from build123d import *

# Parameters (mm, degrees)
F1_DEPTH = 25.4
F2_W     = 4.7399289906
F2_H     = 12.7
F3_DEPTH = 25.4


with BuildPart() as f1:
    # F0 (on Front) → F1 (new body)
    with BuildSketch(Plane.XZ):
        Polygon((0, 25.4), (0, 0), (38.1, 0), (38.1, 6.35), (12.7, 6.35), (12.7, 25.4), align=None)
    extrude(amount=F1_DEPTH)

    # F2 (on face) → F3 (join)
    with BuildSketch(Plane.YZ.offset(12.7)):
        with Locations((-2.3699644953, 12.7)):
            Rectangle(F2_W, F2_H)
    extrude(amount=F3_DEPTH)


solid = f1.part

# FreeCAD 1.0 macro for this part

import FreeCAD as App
import Part
import Sketcher
Q = App.Units.Quantity


def add_polygon(sketch, points):
    """Adds a closed chain of lines whose ends are joined by coincident constraints."""
    first, n = sketch.GeometryCount, len(points)
    for a, b in zip(points, points[1:] + points[:1]):
        sketch.addGeometry(Part.LineSegment(App.Vector(*a, 0), App.Vector(*b, 0)), False)
    for i in range(n):
        sketch.addConstraint(Sketcher.Constraint("Coincident", first + i, 2, first + (i + 1) % n, 1))

doc = App.newDocument("Part")
params = doc.addObject("Spreadsheet::Sheet", "Params")
for row, (alias, value) in enumerate([
    ("sketch1_width", "1 in"),
    ("sketch1_width2", "1.5 in"),
    ("sketch1_height", "0.25 in"),
    ("pad1_length", "1 in"),
    ("sketch2_height", "0.5 in"),
    ("pad2_length", "1 in"),
], start=1):
    params.set(f"A{row}", alias)
    params.set(f"B{row}", "=" + value)
    params.setAlias(f"B{row}", alias)

body = doc.addObject("PartDesign::Body", "Body")

# Sketch on XZ plane
sketch1 = body.newObject("Sketcher::SketchObject", "Sketch")
sketch1.AttachmentSupport = (doc.getObject("XZ_Plane"), [""])
sketch1.MapMode = "FlatFace"
add_polygon(sketch1, [(0, 25), (0, 0), (38, 0), (38, 6), (13, 6), (13, 25)])  # lines 0-5
sketch1.addConstraint([
    Sketcher.Constraint("Vertical", 0),
    Sketcher.Constraint("Horizontal", 1),
    Sketcher.Constraint("Vertical", 2),
    Sketcher.Constraint("Horizontal", 3),
    Sketcher.Constraint("Vertical", 4),
    Sketcher.Constraint("Horizontal", 5),
    Sketcher.Constraint("Coincident", 0, 2, -1, 1),
    Sketcher.Constraint("Equal", 3, 0),
    Sketcher.Constraint("DistanceX", 3, 2, 3, 1, Q("1 in")),
    Sketcher.Constraint("DistanceX", 1, 1, 1, 2, Q("1.5 in")),
    Sketcher.Constraint("DistanceY", 2, 1, 2, 2, Q("0.25 in")),
])
sketch1.setExpression("Constraints[14]", "Params.sketch1_width")
sketch1.setExpression("Constraints[15]", "Params.sketch1_width2")
sketch1.setExpression("Constraints[16]", "Params.sketch1_height")
pad1 = body.newObject("PartDesign::Pad", "Pad")
pad1.Profile = sketch1
pad1.setExpression("Length", "Params.pad1_length")

# Sketch on YZ plane
sketch2 = body.newObject("Sketcher::SketchObject", "Sketch001")
sketch2.AttachmentSupport = (doc.getObject("YZ_Plane"), [""])
sketch2.MapMode = "FlatFace"
sketch2.AttachmentOffset = App.Placement(App.Vector(0, 0, 0.5 * 25.4), App.Rotation())
add_polygon(sketch2, [(-4.7, 19.1), (-4.7, 6.3), (0, 6.3), (0, 19.1)])  # lines 0-3
sketch2.addConstraint([
    Sketcher.Constraint("Vertical", 0),
    Sketcher.Constraint("Horizontal", 1),
    Sketcher.Constraint("Vertical", 2),
    Sketcher.Constraint("Horizontal", 3),
    Sketcher.Constraint("PointOnObject", 1, 2, -2),
    Sketcher.Constraint("DistanceY", 0, 2, 0, 1, Q("0.5 in")),
    Sketcher.Constraint("DistanceY", -1, 1, 0, 2, Q("0.25 in")),
    Sketcher.Constraint("DistanceX", 1, 1, 1, 2, Q("4.739929 mm")),
])
sketch2.setExpression("Constraints[9]", "Params.sketch2_height")
pad2 = body.newObject("PartDesign::Pad", "Pad001")
pad2.Profile = sketch2
pad2.setExpression("Length", "Params.pad2_length")

doc.recompute()
